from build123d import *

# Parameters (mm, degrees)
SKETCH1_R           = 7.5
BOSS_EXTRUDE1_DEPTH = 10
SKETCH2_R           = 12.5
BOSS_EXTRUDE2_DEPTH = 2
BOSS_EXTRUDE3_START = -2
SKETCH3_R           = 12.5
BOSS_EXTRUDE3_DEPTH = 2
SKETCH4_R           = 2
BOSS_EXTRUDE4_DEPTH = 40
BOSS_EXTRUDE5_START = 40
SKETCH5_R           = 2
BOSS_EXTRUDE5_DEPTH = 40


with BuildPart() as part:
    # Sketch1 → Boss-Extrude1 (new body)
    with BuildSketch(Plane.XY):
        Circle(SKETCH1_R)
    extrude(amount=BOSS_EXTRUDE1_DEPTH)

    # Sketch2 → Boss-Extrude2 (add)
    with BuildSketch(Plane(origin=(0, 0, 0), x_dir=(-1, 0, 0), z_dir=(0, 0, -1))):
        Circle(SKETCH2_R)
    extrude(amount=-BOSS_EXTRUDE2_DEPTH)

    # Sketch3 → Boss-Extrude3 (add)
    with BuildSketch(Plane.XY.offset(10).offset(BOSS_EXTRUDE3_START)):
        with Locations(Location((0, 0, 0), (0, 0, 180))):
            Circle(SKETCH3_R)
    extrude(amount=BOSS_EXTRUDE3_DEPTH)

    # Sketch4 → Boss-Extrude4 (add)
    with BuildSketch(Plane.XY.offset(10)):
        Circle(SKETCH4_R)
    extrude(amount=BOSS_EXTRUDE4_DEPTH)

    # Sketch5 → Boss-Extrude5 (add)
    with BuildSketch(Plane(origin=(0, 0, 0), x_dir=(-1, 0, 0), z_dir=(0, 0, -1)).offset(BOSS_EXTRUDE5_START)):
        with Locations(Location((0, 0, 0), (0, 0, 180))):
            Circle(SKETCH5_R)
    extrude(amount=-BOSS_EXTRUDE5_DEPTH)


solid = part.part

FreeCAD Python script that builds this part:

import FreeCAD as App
import Part
import Sketcher
from FreeCAD import Vector
Q = App.Units.Quantity

doc = App.newDocument("Part")
body = doc.addObject("PartDesign::Body", "Body")

# Sketch on XY plane
sketch1 = doc.addObject("Sketcher::SketchObject", "Sketch")
body.addObject(sketch1)
sketch1.AttachmentSupport = (doc.XY_Plane, [""])
sketch1.MapMode = "FlatFace"
sketch1.addGeometry(Part.Circle(Vector(0, 0, 0), Vector(0, 0, 1), 7.5), False)
sketch1.addConstraint([
    Sketcher.Constraint("Coincident", 0, 3, -1, 1),
    Sketcher.Constraint("Diameter", 0, Q("15 mm")),
])
pad1 = doc.addObject("PartDesign::Pad", "Pad")
body.addObject(pad1)
pad1.Profile = sketch1
pad1.Length = 10

# Sketch on XY plane
sketch2 = doc.addObject("Sketcher::SketchObject", "Sketch001")
body.addObject(sketch2)
sketch2.AttachmentSupport = (doc.XY_Plane, [""])
sketch2.MapMode = "FlatFace"
sketch2.addGeometry(Part.Circle(Vector(0, 0, 0), Vector(0, 0, 1), 12.5), False)
sketch2.addConstraint([
    Sketcher.Constraint("Coincident", 0, 3, -1, 1),
    Sketcher.Constraint("Diameter", 0, Q("25 mm")),
])
pad2 = doc.addObject("PartDesign::Pad", "Pad001")
body.addObject(pad2)
pad2.Profile = sketch2
pad2.Length = 2

# Sketch on XY plane
sketch3 = doc.addObject("Sketcher::SketchObject", "Sketch002")
body.addObject(sketch3)
sketch3.AttachmentSupport = (doc.XY_Plane, [""])
sketch3.MapMode = "FlatFace"
sketch3.AttachmentOffset = App.Placement(Vector(0, 0, 8), App.Rotation())
sketch3.addGeometry(Part.Circle(Vector(0, 0, 0), Vector(0, 0, 1), 12.5), False)
sketch3.addConstraint([
    Sketcher.Constraint("Coincident", 0, 3, -1, 1),
    Sketcher.Constraint("Diameter", 0, Q("25 mm")),
])
pad3 = doc.addObject("PartDesign::Pad", "Pad002")
body.addObject(pad3)
pad3.Profile = sketch3
pad3.Length = 2

# Sketch on XY plane
sketch4 = doc.addObject("Sketcher::SketchObject", "Sketch003")
body.addObject(sketch4)
sketch4.AttachmentSupport = (doc.XY_Plane, [""])
sketch4.MapMode = "FlatFace"
sketch4.AttachmentOffset = App.Placement(Vector(0, 0, 10), App.Rotation())
sketch4.addGeometry(Part.Circle(Vector(0, 0, 0), Vector(0, 0, 1), 2), False)
sketch4.addConstraint([
    Sketcher.Constraint("Coincident", 0, 3, -1, 1),
    Sketcher.Constraint("Diameter", 0, Q("4 mm")),
])
pad4 = doc.addObject("PartDesign::Pad", "Pad003")
body.addObject(pad4)
pad4.Profile = sketch4
pad4.Length = 40

# Sketch on XY plane
sketch5 = doc.addObject("Sketcher::SketchObject", "Sketch004")
body.addObject(sketch5)
sketch5.AttachmentSupport = (doc.XY_Plane, [""])
sketch5.MapMode = "FlatFace"
sketch5.AttachmentOffset = App.Placement(Vector(0, 0, -40), App.Rotation())
sketch5.addGeometry(Part.Circle(Vector(0, 0, 0), Vector(0, 0, 1), 2), False)
sketch5.addConstraint([
    Sketcher.Constraint("Coincident", 0, 3, -1, 1),
    Sketcher.Constraint("Diameter", 0, Q("4 mm")),
])
pad5 = doc.addObject("PartDesign::Pad", "Pad004")
body.addObject(pad5)
pad5.Profile = sketch5
pad5.Length = 40

doc.recompute()
